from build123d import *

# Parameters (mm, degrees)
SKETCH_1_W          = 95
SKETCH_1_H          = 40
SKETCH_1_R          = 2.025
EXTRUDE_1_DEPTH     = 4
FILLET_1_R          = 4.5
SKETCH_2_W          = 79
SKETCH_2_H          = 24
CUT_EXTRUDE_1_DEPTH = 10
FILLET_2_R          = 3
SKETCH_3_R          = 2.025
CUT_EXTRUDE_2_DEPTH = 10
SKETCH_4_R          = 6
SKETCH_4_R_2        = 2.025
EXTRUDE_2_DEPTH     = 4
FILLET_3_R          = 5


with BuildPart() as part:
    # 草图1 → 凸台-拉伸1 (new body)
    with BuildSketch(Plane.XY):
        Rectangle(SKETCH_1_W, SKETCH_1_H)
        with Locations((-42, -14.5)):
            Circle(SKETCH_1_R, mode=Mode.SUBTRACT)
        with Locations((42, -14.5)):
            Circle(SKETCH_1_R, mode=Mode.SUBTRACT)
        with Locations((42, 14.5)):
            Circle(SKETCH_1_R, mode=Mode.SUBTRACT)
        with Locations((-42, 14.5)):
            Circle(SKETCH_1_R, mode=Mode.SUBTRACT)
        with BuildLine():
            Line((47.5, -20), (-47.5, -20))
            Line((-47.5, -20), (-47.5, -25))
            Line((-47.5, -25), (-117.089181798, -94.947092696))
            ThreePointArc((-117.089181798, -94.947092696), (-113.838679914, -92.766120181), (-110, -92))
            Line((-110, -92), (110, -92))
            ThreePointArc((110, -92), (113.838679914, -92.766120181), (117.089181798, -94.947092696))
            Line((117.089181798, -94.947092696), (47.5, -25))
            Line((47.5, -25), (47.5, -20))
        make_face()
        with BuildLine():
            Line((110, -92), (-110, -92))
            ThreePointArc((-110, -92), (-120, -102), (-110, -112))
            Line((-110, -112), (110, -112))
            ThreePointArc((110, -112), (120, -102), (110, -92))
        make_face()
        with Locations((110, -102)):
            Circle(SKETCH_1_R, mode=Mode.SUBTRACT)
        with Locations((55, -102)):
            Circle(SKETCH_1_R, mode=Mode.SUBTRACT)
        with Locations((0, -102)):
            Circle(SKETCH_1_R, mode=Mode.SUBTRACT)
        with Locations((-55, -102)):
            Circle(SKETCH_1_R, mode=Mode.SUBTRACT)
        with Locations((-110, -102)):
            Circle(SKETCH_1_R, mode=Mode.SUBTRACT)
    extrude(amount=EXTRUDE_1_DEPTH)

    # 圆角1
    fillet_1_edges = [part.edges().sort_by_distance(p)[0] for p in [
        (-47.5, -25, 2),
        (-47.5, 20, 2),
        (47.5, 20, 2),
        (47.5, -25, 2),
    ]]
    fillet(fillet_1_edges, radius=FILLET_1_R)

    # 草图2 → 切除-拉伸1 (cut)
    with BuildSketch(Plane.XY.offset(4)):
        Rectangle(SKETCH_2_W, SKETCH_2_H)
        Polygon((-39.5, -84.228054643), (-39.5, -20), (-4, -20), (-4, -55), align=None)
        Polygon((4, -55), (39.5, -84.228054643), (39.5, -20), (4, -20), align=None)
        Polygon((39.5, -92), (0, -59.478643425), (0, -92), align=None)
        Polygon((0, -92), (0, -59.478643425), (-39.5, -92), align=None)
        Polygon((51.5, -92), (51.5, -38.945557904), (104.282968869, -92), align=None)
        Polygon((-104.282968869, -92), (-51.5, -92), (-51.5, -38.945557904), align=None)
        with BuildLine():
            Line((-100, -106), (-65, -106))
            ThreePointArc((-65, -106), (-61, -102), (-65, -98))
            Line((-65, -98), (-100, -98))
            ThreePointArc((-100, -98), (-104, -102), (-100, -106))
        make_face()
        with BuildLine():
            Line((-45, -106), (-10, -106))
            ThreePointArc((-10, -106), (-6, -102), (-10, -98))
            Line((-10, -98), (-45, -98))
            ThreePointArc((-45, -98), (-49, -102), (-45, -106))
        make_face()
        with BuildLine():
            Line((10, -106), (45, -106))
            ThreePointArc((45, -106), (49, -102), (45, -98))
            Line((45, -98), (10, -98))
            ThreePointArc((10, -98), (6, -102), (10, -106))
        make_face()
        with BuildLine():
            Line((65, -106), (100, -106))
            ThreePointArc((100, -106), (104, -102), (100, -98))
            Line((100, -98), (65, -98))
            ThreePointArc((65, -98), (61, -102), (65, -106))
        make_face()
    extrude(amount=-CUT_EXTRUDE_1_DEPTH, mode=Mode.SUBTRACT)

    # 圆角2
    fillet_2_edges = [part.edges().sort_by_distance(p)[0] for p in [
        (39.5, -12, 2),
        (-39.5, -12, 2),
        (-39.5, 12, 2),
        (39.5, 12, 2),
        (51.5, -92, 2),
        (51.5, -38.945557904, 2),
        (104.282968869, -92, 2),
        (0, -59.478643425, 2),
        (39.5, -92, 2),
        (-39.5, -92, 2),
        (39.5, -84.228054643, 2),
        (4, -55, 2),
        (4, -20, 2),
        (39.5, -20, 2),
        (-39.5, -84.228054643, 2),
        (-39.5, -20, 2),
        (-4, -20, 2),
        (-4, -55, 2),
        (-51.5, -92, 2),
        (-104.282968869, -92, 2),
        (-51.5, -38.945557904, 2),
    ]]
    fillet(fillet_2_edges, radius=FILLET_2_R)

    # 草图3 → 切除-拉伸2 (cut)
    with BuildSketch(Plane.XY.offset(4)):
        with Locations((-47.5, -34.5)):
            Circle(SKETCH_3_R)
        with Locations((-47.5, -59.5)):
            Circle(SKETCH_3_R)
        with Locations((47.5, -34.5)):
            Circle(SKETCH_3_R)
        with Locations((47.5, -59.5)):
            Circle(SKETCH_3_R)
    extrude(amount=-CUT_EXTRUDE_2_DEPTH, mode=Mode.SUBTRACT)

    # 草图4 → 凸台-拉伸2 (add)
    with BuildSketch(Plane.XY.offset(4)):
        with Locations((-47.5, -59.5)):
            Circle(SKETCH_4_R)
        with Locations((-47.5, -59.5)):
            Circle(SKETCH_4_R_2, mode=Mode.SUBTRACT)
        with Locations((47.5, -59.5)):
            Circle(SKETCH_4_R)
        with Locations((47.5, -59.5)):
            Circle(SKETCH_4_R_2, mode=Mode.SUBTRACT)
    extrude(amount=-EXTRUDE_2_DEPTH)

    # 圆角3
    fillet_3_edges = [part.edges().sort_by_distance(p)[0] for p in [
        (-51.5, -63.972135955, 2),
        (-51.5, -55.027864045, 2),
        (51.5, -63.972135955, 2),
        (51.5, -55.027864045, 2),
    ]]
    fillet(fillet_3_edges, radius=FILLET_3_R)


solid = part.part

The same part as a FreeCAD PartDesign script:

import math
import FreeCAD as App
import Part
import Sketcher

V = App.Vector
Q = App.Units.Quantity


def edges_at(feature, points):
    """Names of the edges that pass closest to the given points."""
    edges = feature.Shape.Edges
    near = lambda p: min(range(len(edges)), key=lambda i: edges[i].distToShape(Part.Vertex(*p))[0])
    return sorted({f"Edge{near(p) + 1}" for p in points})

doc = App.newDocument("Part")
body = doc.addObject("PartDesign::Body", "Body")

sketch1 = body.newObject("Sketcher::SketchObject", "Sketch")
sketch1.AttachmentSupport = (doc.getObject("XY_Plane"), [""])
sketch1.MapMode = "FlatFace"
sketch1.addGeometry([
    Part.LineSegment(V(-47.5, 20, 0), V(-47.5, -25, 0)),
    Part.LineSegment(V(-47.5, -25, 0), V(-117.089182, -94.947093, 0)),
    Part.ArcOfCircle(Part.Circle(V(-110, -102, 0), V(0, 0, 1), 10), math.radians(135.146963), math.radians(270)),
    Part.LineSegment(V(-110, -112, 0), V(110, -112, 0)),
    Part.ArcOfCircle(Part.Circle(V(110, -102, 0), V(0, 0, 1), 10), math.radians(-90), math.radians(44.853037)),
    Part.LineSegment(V(117.089182, -94.947093, 0), V(47.5, -25, 0)),
    Part.LineSegment(V(47.5, -25, 0), V(47.5, 20, 0)),
    Part.LineSegment(V(47.5, 20, 0), V(-47.5, 20, 0)),
    Part.Circle(V(-110, -102, 0), V(0, 0, 1), 2.025),
    Part.Circle(V(-55, -102, 0), V(0, 0, 1), 2.025),
    Part.Circle(V(0, -102, 0), V(0, 0, 1), 2.025),
    Part.Circle(V(55, -102, 0), V(0, 0, 1), 2.025),
    Part.Circle(V(110, -102, 0), V(0, 0, 1), 2.025),
    Part.Circle(V(-42, -14.5, 0), V(0, 0, 1), 2.025),
    Part.Circle(V(-42, 14.5, 0), V(0, 0, 1), 2.025),
    Part.Circle(V(42, -14.5, 0), V(0, 0, 1), 2.025),
    Part.Circle(V(42, 14.5, 0), V(0, 0, 1), 2.025),
], False)
sketch1.addConstraint([
    Sketcher.Constraint("Coincident", 0, 2, 1, 1),
    Sketcher.Constraint("Tangent", 1, 2, 2, 1),
    Sketcher.Constraint("Tangent", 2, 2, 3, 1),
    Sketcher.Constraint("Tangent", 3, 2, 4, 1),
    Sketcher.Constraint("Tangent", 4, 2, 5, 1),
    Sketcher.Constraint("Coincident", 5, 2, 6, 1),
    Sketcher.Constraint("Coincident", 6, 2, 7, 1),
    Sketcher.Constraint("Coincident", 7, 2, 0, 1),
    Sketcher.Constraint("Vertical", 0),
    Sketcher.Constraint("Horizontal", 3),
    Sketcher.Constraint("Vertical", 6),
    Sketcher.Constraint("Horizontal", 7),
    Sketcher.Constraint("Coincident", 8, 3, 2, 3),
    Sketcher.Constraint("Coincident", 12, 3, 4, 3),
    Sketcher.Constraint("Equal", 2, 4),
    Sketcher.Constraint("Equal", 8, 9),
    Sketcher.Constraint("Equal", 9, 10),
    Sketcher.Constraint("Equal", 10, 11),
    Sketcher.Constraint("Equal", 11, 12),
    Sketcher.Constraint("Equal", 12, 13),
    Sketcher.Constraint("Equal", 13, 14),
    Sketcher.Constraint("Equal", 14, 15),
    Sketcher.Constraint("Equal", 15, 16),
    Sketcher.Constraint("Symmetric", 14, 3, 15, 3, -1, 1),
    Sketcher.Constraint("Symmetric", 13, 3, 16, 3, -1, 1),
    Sketcher.Constraint("Symmetric", 9, 3, 11, 3, -2),
    Sketcher.Constraint("Symmetric", 13, 3, 15, 3, -2),
    Sketcher.Constraint("Symmetric", 1, 2, 4, 2, -2),
    Sketcher.Constraint("PointOnObject", 10, 3, -2),
    Sketcher.Constraint("Horizontal", 8, 3, 9, 3),
    Sketcher.Constraint("Horizontal", 9, 3, 10, 3),
    Sketcher.Constraint("Horizontal", 0, 2, 5, 2),
    Sketcher.Constraint("Radius", 2, Q("10 mm")),
    Sketcher.Constraint("Diameter", 8, Q("4.05 mm")),
    Sketcher.Constraint("DistanceX", 3, 1, 3, 2, Q("220 mm")),
    Sketcher.Constraint("DistanceX", 7, 2, 7, 1, Q("95 mm")),
    Sketcher.Constraint("DistanceY", 0, 2, 0, 1, Q("45 mm")),
    Sketcher.Constraint("DistanceY", 2, 3, -1, 1, Q("102 mm")),
    Sketcher.Constraint("DistanceX", 9, 3, -1, 1, Q("55 mm")),
    Sketcher.Constraint("DistanceX", 13, 3, -1, 1, Q("42 mm")),
    Sketcher.Constraint("DistanceY", 0, 2, -1, 1, Q("25 mm")),
    Sketcher.Constraint("DistanceY", 13, 3, 14, 3, Q("29 mm")),
])
pad1 = body.newObject("PartDesign::Pad", "Pad")
pad1.Profile = sketch1
pad1.Length = 4
doc.recompute()

fillet = body.newObject("PartDesign::Fillet", "Fillet")
fillet.Base = (pad1, edges_at(pad1, [
    (-47.5, -25, 2),
    (-47.5, 20, 2),
    (47.5, 20, 2),
    (47.5, -25, 2),
]))
fillet.Radius = 4.5

sketch2 = body.newObject("Sketcher::SketchObject", "Sketch001")
sketch2.AttachmentSupport = (doc.getObject("XY_Plane"), [""])
sketch2.MapMode = "FlatFace"
sketch2.AttachmentOffset = App.Placement(V(0, 0, 4), App.Rotation())
sketch2.addGeometry([
    Part.LineSegment(V(-39.5, 12, 0), V(-39.5, -12, 0)),
    Part.LineSegment(V(-39.5, -12, 0), V(39.5, -12, 0)),
    Part.LineSegment(V(39.5, -12, 0), V(39.5, 12, 0)),
    Part.LineSegment(V(39.5, 12, 0), V(-39.5, 12, 0)),
    Part.LineSegment(V(-39.5, -20, 0), V(-39.5, -84.228055, 0)),
    Part.LineSegment(V(-39.5, -84.228055, 0), V(-4, -55, 0)),
    Part.LineSegment(V(-4, -55, 0), V(-4, -20, 0)),
    Part.LineSegment(V(-4, -20, 0), V(-39.5, -20, 0)),
    Part.LineSegment(V(4, -55, 0), V(39.5, -84.228055, 0)),
    Part.LineSegment(V(39.5, -84.228055, 0), V(39.5, -20, 0)),
    Part.LineSegment(V(39.5, -20, 0), V(4, -20, 0)),
    Part.LineSegment(V(4, -20, 0), V(4, -55, 0)),
    Part.LineSegment(V(39.5, -92, 0), V(0, -59.478643, 0)),
    Part.LineSegment(V(0, -59.478643, 0), V(-39.5, -92, 0)),
    Part.LineSegment(V(-39.5, -92, 0), V(39.5, -92, 0)),
    Part.LineSegment(V(51.5, -38.945558, 0), V(51.5, -92, 0)),
    Part.LineSegment(V(51.5, -92, 0), V(104.282969, -92, 0)),
    Part.LineSegment(V(104.282969, -92, 0), V(51.5, -38.945558, 0)),
    Part.LineSegment(V(-104.282969, -92, 0), V(-51.5, -92, 0)),
    Part.LineSegment(V(-51.5, -92, 0), V(-51.5, -38.945558, 0)),
    Part.LineSegment(V(-51.5, -38.945558, 0), V(-104.282969, -92, 0)),
    Part.LineSegment(V(-100, -106, 0), V(-65, -106, 0)),
    Part.ArcOfCircle(Part.Circle(V(-65, -102, 0), V(0, 0, 1), 4), math.radians(-90), math.radians(90)),
    Part.LineSegment(V(-65, -98, 0), V(-100, -98, 0)),
    Part.ArcOfCircle(Part.Circle(V(-100, -102, 0), V(0, 0, 1), 4), math.radians(90), math.radians(270)),
    Part.LineSegment(V(-45, -106, 0), V(-10, -106, 0)),
    Part.ArcOfCircle(Part.Circle(V(-10, -102, 0), V(0, 0, 1), 4), math.radians(-90), math.radians(90)),
    Part.LineSegment(V(-10, -98, 0), V(-45, -98, 0)),
    Part.ArcOfCircle(Part.Circle(V(-45, -102, 0), V(0, 0, 1), 4), math.radians(90), math.radians(270)),
    Part.LineSegment(V(10, -106, 0), V(45, -106, 0)),
    Part.ArcOfCircle(Part.Circle(V(45, -102, 0), V(0, 0, 1), 4), math.radians(-90), math.radians(90)),
    Part.LineSegment(V(45, -98, 0), V(10, -98, 0)),
    Part.ArcOfCircle(Part.Circle(V(10, -102, 0), V(0, 0, 1), 4), math.radians(90), math.radians(270)),
    Part.LineSegment(V(65, -106, 0), V(100, -106, 0)),
    Part.ArcOfCircle(Part.Circle(V(100, -102, 0), V(0, 0, 1), 4), math.radians(-90), math.radians(90)),
    Part.LineSegment(V(100, -98, 0), V(65, -98, 0)),
    Part.ArcOfCircle(Part.Circle(V(65, -102, 0), V(0, 0, 1), 4), math.radians(90), math.radians(270)),
], False)
sketch2.addConstraint([
    Sketcher.Constraint("Coincident", 0, 2, 1, 1),
    Sketcher.Constraint("Coincident", 1, 2, 2, 1),
    Sketcher.Constraint("Coincident", 2, 2, 3, 1),
    Sketcher.Constraint("Coincident", 3, 2, 0, 1),
    Sketcher.Constraint("Coincident", 4, 2, 5, 1),
    Sketcher.Constraint("Coincident", 5, 2, 6, 1),
    Sketcher.Constraint("Coincident", 6, 2, 7, 1),
    Sketcher.Constraint("Coincident", 7, 2, 4, 1),
    Sketcher.Constraint("Coincident", 8, 2, 9, 1),
    Sketcher.Constraint("Coincident", 9, 2, 10, 1),
    Sketcher.Constraint("Coincident", 10, 2, 11, 1),
    Sketcher.Constraint("Coincident", 11, 2, 8, 1),
    Sketcher.Constraint("Coincident", 12, 2, 13, 1),
    Sketcher.Constraint("Coincident", 13, 2, 14, 1),
    Sketcher.Constraint("Coincident", 14, 2, 12, 1),
    Sketcher.Constraint("Coincident", 15, 2, 16, 1),
    Sketcher.Constraint("Coincident", 16, 2, 17, 1),
    Sketcher.Constraint("Coincident", 17, 2, 15, 1),
    Sketcher.Constraint("Coincident", 18, 2, 19, 1),
    Sketcher.Constraint("Coincident", 19, 2, 20, 1),
    Sketcher.Constraint("Coincident", 20, 2, 18, 1),
    Sketcher.Constraint("Tangent", 21, 2, 22, 1),
    Sketcher.Constraint("Tangent", 22, 2, 23, 1),
    Sketcher.Constraint("Tangent", 23, 2, 24, 1),
    Sketcher.Constraint("Tangent", 24, 2, 21, 1),
    Sketcher.Constraint("Tangent", 25, 2, 26, 1),
    Sketcher.Constraint("Tangent", 26, 2, 27, 1),
    Sketcher.Constraint("Tangent", 27, 2, 28, 1),
    Sketcher.Constraint("Tangent", 28, 2, 25, 1),
    Sketcher.Constraint("Tangent", 29, 2, 30, 1),
    Sketcher.Constraint("Tangent", 30, 2, 31, 1),
    Sketcher.Constraint("Tangent", 31, 2, 32, 1),
    Sketcher.Constraint("Tangent", 32, 2, 29, 1),
    Sketcher.Constraint("Tangent", 33, 2, 34, 1),
    Sketcher.Constraint("Tangent", 34, 2, 35, 1),
    Sketcher.Constraint("Tangent", 35, 2, 36, 1),
    Sketcher.Constraint("Tangent", 36, 2, 33, 1),
    Sketcher.Constraint("Vertical", 0),
    Sketcher.Constraint("Horizontal", 1),
    Sketcher.Constraint("Vertical", 2),
    Sketcher.Constraint("Horizontal", 3),
    Sketcher.Constraint("Vertical", 4),
    Sketcher.Constraint("Vertical", 6),
    Sketcher.Constraint("Horizontal", 7),
    Sketcher.Constraint("Vertical", 9),
    Sketcher.Constraint("Horizontal", 10),
    Sketcher.Constraint("Vertical", 11),
    Sketcher.Constraint("Horizontal", 14),
    Sketcher.Constraint("Vertical", 15),
    Sketcher.Constraint("Horizontal", 16),
    Sketcher.Constraint("Horizontal", 18),
    Sketcher.Constraint("Vertical", 19),
    Sketcher.Constraint("Horizontal", 21),
    Sketcher.Constraint("Horizontal", 23),
    Sketcher.Constraint("Horizontal", 25),
    Sketcher.Constraint("Horizontal", 27),
    Sketcher.Constraint("Horizontal", 29),
    Sketcher.Constraint("Horizontal", 31),
    Sketcher.Constraint("Horizontal", 33),
    Sketcher.Constraint("Horizontal", 35),
    Sketcher.Constraint("Equal", 24, 26),
    Sketcher.Constraint("Equal", 28, 30),
    Sketcher.Constraint("Equal", 32, 34),
    Sketcher.Constraint("Symmetric", 0, 2, 2, 2, -1, 1),
    Sketcher.Constraint("Symmetric", 28, 3, 30, 3, -2),
    Sketcher.Constraint("Symmetric", 24, 3, 34, 3, -2),
    Sketcher.Constraint("Symmetric", 4, 2, 8, 2, -2),
    Sketcher.Constraint("Symmetric", 6, 2, 10, 2, -2),
    Sketcher.Constraint("Symmetric", 15, 2, 18, 2, -2),
    Sketcher.Constraint("PointOnObject", 12, 2, -2),
    Sketcher.Constraint("Parallel", 8, 12),
    Sketcher.Constraint("Parallel", 5, 13),
    Sketcher.Constraint("Horizontal", 24, 3, 26, 3),
    Sketcher.Constraint("Horizontal", 5, 2, 11, 2),
    Sketcher.Constraint("Horizontal", 14, 2, 15, 2),
    Sketcher.Constraint("Horizontal", 17, 2, 19, 2),
    Sketcher.Constraint("Vertical", 3, 2, 4, 2),
    Sketcher.Constraint("Vertical", 7, 2, 13, 2),
    Sketcher.Constraint("Equal", 16, 18),
    Sketcher.Constraint("Equal", 23, 25),
    Sketcher.Constraint("Equal", 27, 29),
    Sketcher.Constraint("Equal", 31, 33),
    Sketcher.Constraint("Equal", 35, 6),
    Sketcher.Constraint("Radius", 22, Q("4 mm")),
    Sketcher.Constraint("DistanceX", 1, 1, 1, 2, Q("79 mm")),
    Sketcher.Constraint("DistanceX", 21, 1, 21, 2, Q("35 mm")),
    Sketcher.Constraint("DistanceY", 0, 2, 0, 1, Q("24 mm")),
    Sketcher.Constraint("DistanceX", 7, 2, 7, 1, Q("35.5 mm")),
    Sketcher.Constraint("DistanceX", 22, 3, -1, 1, Q("65 mm")),
    Sketcher.Constraint("DistanceY", 22, 3, -1, 1, Q("102 mm")),
    Sketcher.Constraint("DistanceX", 26, 3, -1, 1, Q("10 mm")),
    Sketcher.Constraint("DistanceY", 5, 2, -1, 1, Q("55 mm")),
    Sketcher.Constraint("DistanceY", 13, 2, -1, 1, Q("92 mm")),
    Sketcher.Constraint("DistanceX", 14, 2, 15, 2, Q("12 mm")),
    Sketcher.Constraint("DistanceX", 16, 1, 16, 2, Q("52.782969 mm")),
    Sketcher.Constraint("Distance", 5, Q("45.98401 mm")),
    Sketcher.Constraint("DistanceY", 15, 2, 15, 1, Q("53.054442 mm")),
])
pocket1 = body.newObject("PartDesign::Pocket", "Pocket")
pocket1.Profile = sketch2
pocket1.Length = 10
doc.recompute()

fillet2 = body.newObject("PartDesign::Fillet", "Fillet001")
fillet2.Base = (pocket1, edges_at(pocket1, [
    (39.5, -12, 2),
    (-39.5, -12, 2),
    (-39.5, 12, 2),
    (39.5, 12, 2),
    (51.5, -92, 2),
    (51.5, -38.946, 2),
    (104.283, -92, 2),
    (0, -59.479, 2),
    (39.5, -92, 2),
    (-39.5, -92, 2),
    (39.5, -84.228, 2),
    (4, -55, 2),
    (4, -20, 2),
    (39.5, -20, 2),
    (-39.5, -84.228, 2),
    (-39.5, -20, 2),
    (-4, -20, 2),
    (-4, -55, 2),
    (-51.5, -92, 2),
    (-104.283, -92, 2),
    (-51.5, -38.946, 2),
]))
fillet2.Radius = 3

sketch3 = body.newObject("Sketcher::SketchObject", "Sketch002")
sketch3.AttachmentSupport = (doc.getObject("XY_Plane"), [""])
sketch3.MapMode = "FlatFace"
sketch3.AttachmentOffset = App.Placement(V(0, 0, 4), App.Rotation())
sketch3.addGeometry([
    Part.Circle(V(-47.5, -34.5, 0), V(0, 0, 1), 2.025),
    Part.Circle(V(-47.5, -59.5, 0), V(0, 0, 1), 2.025),
    Part.Circle(V(47.5, -34.5, 0), V(0, 0, 1), 2.025),
    Part.Circle(V(47.5, -59.5, 0), V(0, 0, 1), 2.025),
], False)
sketch3.addConstraint([
    Sketcher.Constraint("Equal", 0, 1),
    Sketcher.Constraint("Equal", 1, 2),
    Sketcher.Constraint("Equal", 2, 3),
    Sketcher.Constraint("Symmetric", 0, 3, 2, 3, -2),
    Sketcher.Constraint("Symmetric", 1, 3, 3, 3, -2),
    Sketcher.Constraint("Vertical", 0, 3, 1, 3),
    Sketcher.Constraint("Diameter", 0, Q("4.05 mm")),
    Sketcher.Constraint("DistanceY", 1, 3, 0, 3, Q("25 mm")),
    Sketcher.Constraint("DistanceX", 0, 3, 2, 3, Q("95 mm")),
    Sketcher.Constraint("DistanceY", 0, 3, -1, 1, Q("34.5 mm")),
])
pocket2 = body.newObject("PartDesign::Pocket", "Pocket001")
pocket2.Profile = sketch3
pocket2.Length = 10

sketch4 = body.newObject("Sketcher::SketchObject", "Sketch003")
sketch4.AttachmentSupport = (doc.getObject("XY_Plane"), [""])
sketch4.MapMode = "FlatFace"
sketch4.AttachmentOffset = App.Placement(V(0, 0, 4), App.Rotation())
sketch4.addGeometry([
    Part.Circle(V(-47.5, -59.5, 0), V(0, 0, 1), 6),
    Part.Circle(V(-47.5, -59.5, 0), V(0, 0, 1), 2.025),
    Part.Circle(V(47.5, -59.5, 0), V(0, 0, 1), 6),
    Part.Circle(V(47.5, -59.5, 0), V(0, 0, 1), 2.025),
], False)
sketch4.addConstraint([
    Sketcher.Constraint("Coincident", 1, 3, 0, 3),
    Sketcher.Constraint("Coincident", 3, 3, 2, 3),
    Sketcher.Constraint("Equal", 0, 2),
    Sketcher.Constraint("Equal", 1, 3),
    Sketcher.Constraint("Symmetric", 0, 3, 2, 3, -2),
    Sketcher.Constraint("Diameter", 0, Q("12 mm")),
    Sketcher.Constraint("Diameter", 1, Q("4.05 mm")),
    Sketcher.Constraint("DistanceX", 0, 3, 2, 3, Q("95 mm")),
    Sketcher.Constraint("DistanceY", 0, 3, -1, 1, Q("59.5 mm")),
])
pad2 = body.newObject("PartDesign::Pad", "Pad001")
pad2.Profile = sketch4
pad2.Length = 4
pad2.Reversed = True
doc.recompute()

fillet3 = body.newObject("PartDesign::Fillet", "Fillet002")
fillet3.Base = (pad2, edges_at(pad2, [
    (-51.5, -63.972, 2),
    (-51.5, -55.028, 2),
    (51.5, -63.972, 2),
    (51.5, -55.028, 2),
]))
fillet3.Radius = 5

doc.recompute()
